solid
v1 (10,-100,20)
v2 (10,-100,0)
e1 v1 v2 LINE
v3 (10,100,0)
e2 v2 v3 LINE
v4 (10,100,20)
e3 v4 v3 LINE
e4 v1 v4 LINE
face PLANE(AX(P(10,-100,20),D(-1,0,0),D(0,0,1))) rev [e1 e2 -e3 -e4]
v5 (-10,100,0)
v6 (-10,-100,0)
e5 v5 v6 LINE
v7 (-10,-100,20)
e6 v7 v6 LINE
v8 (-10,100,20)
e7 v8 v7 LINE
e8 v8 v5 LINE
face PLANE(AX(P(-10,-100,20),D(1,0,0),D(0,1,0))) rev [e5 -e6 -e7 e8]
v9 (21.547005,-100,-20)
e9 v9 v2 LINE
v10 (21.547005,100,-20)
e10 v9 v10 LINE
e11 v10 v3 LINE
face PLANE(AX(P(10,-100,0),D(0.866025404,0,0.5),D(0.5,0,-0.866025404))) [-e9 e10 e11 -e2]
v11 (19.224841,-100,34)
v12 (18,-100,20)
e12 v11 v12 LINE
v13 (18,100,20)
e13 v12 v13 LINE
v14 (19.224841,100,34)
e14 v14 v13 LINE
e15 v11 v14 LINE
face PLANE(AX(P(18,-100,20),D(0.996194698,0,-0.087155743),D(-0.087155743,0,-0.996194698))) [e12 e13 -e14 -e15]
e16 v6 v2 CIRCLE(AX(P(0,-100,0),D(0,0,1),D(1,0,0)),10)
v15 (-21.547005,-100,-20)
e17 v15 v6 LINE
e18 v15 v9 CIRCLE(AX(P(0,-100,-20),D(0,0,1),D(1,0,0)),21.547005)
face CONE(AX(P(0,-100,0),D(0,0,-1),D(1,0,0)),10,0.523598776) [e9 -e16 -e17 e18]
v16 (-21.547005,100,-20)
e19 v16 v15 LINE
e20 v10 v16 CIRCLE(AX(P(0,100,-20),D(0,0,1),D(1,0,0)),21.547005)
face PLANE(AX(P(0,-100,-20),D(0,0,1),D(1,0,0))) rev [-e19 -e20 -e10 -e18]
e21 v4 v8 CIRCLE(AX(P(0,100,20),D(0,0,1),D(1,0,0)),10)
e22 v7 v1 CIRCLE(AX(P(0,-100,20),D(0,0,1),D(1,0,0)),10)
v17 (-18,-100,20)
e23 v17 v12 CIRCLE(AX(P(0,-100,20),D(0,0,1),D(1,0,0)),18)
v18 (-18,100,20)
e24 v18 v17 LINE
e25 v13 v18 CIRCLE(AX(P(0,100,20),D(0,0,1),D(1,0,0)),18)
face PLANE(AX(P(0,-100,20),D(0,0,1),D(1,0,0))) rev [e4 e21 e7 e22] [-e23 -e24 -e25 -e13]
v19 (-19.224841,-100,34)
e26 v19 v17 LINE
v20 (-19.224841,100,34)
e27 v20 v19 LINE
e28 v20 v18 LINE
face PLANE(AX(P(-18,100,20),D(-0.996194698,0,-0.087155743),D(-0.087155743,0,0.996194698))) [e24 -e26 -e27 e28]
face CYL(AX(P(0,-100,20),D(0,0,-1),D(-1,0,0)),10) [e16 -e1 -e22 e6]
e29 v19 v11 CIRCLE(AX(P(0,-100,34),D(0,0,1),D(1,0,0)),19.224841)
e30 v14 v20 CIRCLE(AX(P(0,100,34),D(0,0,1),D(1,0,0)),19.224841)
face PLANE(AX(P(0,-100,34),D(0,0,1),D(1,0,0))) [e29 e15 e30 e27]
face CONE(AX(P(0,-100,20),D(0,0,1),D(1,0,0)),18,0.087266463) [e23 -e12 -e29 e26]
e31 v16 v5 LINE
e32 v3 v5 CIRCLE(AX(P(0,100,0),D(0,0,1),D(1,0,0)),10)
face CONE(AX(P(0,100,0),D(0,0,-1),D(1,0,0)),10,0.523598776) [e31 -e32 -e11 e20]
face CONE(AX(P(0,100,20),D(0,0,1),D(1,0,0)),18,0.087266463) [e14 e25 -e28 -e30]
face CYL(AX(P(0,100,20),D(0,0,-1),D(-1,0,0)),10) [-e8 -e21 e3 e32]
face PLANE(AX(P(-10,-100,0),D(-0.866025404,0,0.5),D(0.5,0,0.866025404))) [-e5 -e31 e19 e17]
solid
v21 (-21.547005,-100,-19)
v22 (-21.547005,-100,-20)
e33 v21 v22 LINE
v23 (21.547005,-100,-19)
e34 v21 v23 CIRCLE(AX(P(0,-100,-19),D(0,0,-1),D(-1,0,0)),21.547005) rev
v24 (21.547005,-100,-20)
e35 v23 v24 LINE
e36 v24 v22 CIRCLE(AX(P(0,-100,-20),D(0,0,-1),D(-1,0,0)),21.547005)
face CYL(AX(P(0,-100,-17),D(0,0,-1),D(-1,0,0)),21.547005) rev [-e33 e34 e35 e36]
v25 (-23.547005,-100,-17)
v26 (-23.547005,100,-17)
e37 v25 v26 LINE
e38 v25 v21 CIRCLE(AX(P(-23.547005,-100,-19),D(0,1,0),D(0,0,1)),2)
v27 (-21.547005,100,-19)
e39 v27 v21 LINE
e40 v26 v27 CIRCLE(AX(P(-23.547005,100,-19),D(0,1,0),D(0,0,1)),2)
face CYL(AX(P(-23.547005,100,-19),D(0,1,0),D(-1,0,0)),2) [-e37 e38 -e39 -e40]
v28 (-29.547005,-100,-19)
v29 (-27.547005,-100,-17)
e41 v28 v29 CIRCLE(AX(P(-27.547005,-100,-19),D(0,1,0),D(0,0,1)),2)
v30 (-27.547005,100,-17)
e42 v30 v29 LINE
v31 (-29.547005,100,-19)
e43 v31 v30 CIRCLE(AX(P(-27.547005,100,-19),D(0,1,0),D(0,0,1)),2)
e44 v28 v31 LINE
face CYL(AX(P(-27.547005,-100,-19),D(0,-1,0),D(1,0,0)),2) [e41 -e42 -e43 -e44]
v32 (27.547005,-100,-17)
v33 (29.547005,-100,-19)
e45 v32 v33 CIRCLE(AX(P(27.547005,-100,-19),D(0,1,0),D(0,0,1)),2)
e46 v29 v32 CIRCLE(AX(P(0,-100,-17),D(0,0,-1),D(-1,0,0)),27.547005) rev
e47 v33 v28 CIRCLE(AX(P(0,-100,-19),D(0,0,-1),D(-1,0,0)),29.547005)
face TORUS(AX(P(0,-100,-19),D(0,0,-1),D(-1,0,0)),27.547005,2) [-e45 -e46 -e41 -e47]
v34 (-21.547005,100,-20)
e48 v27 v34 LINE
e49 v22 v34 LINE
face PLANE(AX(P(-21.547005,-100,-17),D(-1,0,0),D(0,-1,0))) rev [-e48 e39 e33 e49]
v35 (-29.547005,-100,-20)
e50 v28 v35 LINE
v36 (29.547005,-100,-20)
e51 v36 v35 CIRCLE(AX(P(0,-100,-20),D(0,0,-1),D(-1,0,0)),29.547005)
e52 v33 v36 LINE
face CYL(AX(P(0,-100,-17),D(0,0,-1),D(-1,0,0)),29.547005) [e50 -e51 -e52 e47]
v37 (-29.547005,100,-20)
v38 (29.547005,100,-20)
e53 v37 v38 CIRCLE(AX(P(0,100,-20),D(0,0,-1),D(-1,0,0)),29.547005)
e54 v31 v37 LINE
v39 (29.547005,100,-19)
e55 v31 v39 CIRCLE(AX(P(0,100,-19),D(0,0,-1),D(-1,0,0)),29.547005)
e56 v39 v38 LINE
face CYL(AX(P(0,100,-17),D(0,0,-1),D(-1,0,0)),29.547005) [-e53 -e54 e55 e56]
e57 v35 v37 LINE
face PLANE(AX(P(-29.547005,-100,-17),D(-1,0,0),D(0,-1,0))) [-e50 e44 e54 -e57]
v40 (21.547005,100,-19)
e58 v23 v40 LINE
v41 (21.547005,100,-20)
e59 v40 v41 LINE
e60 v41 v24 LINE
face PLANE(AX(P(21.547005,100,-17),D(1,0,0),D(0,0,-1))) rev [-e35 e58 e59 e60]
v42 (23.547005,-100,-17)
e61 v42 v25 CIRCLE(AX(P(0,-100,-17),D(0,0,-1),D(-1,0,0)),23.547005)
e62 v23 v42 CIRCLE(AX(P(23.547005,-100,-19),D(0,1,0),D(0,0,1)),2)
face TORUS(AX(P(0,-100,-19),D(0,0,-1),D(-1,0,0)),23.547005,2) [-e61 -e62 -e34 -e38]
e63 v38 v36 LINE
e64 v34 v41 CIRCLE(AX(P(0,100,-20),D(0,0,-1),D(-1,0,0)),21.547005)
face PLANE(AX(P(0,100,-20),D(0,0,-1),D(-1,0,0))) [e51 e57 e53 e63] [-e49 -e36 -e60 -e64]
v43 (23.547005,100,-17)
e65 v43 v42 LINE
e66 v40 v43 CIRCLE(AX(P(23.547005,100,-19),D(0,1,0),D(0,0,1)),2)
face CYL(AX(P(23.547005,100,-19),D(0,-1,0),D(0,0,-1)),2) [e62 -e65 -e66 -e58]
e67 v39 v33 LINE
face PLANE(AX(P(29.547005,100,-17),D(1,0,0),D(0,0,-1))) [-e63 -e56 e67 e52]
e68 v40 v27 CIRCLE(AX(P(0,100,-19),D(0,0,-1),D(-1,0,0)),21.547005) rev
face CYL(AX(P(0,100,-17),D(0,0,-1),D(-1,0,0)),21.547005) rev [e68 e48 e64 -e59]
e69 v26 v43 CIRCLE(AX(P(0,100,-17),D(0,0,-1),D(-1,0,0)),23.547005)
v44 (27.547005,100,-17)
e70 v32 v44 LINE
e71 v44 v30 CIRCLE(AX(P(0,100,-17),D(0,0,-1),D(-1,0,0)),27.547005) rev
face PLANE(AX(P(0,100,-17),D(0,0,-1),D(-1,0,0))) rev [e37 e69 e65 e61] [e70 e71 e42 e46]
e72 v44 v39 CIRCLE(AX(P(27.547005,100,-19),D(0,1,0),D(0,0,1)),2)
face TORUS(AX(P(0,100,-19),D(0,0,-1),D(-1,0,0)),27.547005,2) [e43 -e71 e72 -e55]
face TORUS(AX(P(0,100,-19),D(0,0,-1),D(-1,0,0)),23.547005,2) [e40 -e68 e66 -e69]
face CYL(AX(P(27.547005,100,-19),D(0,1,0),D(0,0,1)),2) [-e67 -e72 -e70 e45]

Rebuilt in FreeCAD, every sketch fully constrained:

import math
import FreeCAD as App
import Part
import Sketcher

V = App.Vector


def edges_at(feature, points):
    """Names of the edges that pass closest to the given points."""
    edges = feature.Shape.Edges
    near = lambda p: min(range(len(edges)), key=lambda i: edges[i].distToShape(Part.Vertex(*p))[0])
    return sorted({f"Edge{near(p) + 1}" for p in points})

doc = App.newDocument("Part")
body = doc.addObject("PartDesign::Body", "Body")

sketch1 = body.newObject("Sketcher::SketchObject", "Sketch")
sketch1.AttachmentSupport = (doc.getObject("XY_Plane"), [""])
sketch1.MapMode = "FlatFace"
sketch1.addGeometry([
    Part.ArcOfCircle(Part.Circle(V(0, -100, 0), V(0, 0, 1), 10), math.radians(180), math.radians(360)),
    Part.LineSegment(V(10, -100, 0), V(10, 100, 0)),
    Part.ArcOfCircle(Part.Circle(V(0, 100, 0), V(0, 0, 1), 10), math.radians(0), math.radians(180)),
    Part.LineSegment(V(-10, 100, 0), V(-10, -100, 0)),
], False)
sketch1.addConstraint([
    Sketcher.Constraint("Tangent", 0, 2, 1, 1),
    Sketcher.Constraint("Tangent", 1, 2, 2, 1),
    Sketcher.Constraint("Tangent", 2, 2, 3, 1),
    Sketcher.Constraint("Tangent", 3, 2, 0, 1),
    Sketcher.Constraint("Vertical", 1),
    Sketcher.Constraint("Vertical", 3),
    Sketcher.Constraint("Symmetric", 0, 3, 2, 3, -1, 1),
    Sketcher.Constraint("Radius", 0, 10.0),
    Sketcher.Constraint("DistanceY", 1, 1, 1, 2, 200.0),
])
pad1 = body.newObject("PartDesign::Pad", "Pad")
pad1.Profile = sketch1
pad1.Length = 20

sketch2 = body.newObject("Sketcher::SketchObject", "Sketch001")
sketch2.AttachmentSupport = (doc.getObject("XY_Plane"), [""])
sketch2.MapMode = "FlatFace"
sketch2.addGeometry([
    Part.ArcOfCircle(Part.Circle(V(0, -100, 0), V(0, 0, 1), 10), math.radians(180), math.radians(360)),
    Part.LineSegment(V(10, -100, 0), V(10, 100, 0)),
    Part.ArcOfCircle(Part.Circle(V(0, 100, 0), V(0, 0, 1), 10), math.radians(0), math.radians(180)),
    Part.LineSegment(V(-10, 100, 0), V(-10, -100, 0)),
], False)
sketch2.addConstraint([
    Sketcher.Constraint("Tangent", 0, 2, 1, 1),
    Sketcher.Constraint("Tangent", 1, 2, 2, 1),
    Sketcher.Constraint("Tangent", 2, 2, 3, 1),
    Sketcher.Constraint("Tangent", 3, 2, 0, 1),
    Sketcher.Constraint("Vertical", 1),
    Sketcher.Constraint("Vertical", 3),
    Sketcher.Constraint("Symmetric", 0, 3, 2, 3, -1, 1),
    Sketcher.Constraint("Radius", 0, 10.0),
    Sketcher.Constraint("DistanceY", 1, 1, 1, 2, 200.0),
])
pad2 = body.newObject("PartDesign::Pad", "Pad001")
pad2.Profile = sketch2
pad2.Length = 20
pad2.Reversed = True
pad2.TaperAngle = 30

sketch3 = body.newObject("Sketcher::SketchObject", "Sketch002")
sketch3.AttachmentSupport = (doc.getObject("XY_Plane"), [""])
sketch3.MapMode = "FlatFace"
sketch3.AttachmentOffset = App.Placement(V(0, 0, 20), App.Rotation())
sketch3.addGeometry([
    Part.LineSegment(V(18, -100, 0), V(18, 100, 0)),
    Part.ArcOfCircle(Part.Circle(V(0, 100, 0), V(0, 0, 1), 18), math.radians(0), math.radians(180)),
    Part.LineSegment(V(-18, 100, 0), V(-18, -100, 0)),
    Part.ArcOfCircle(Part.Circle(V(0, -100, 0), V(0, 0, 1), 18), math.radians(180), math.radians(360)),
], False)
sketch3.addConstraint([
    Sketcher.Constraint("Tangent", 0, 2, 1, 1),
    Sketcher.Constraint("Tangent", 1, 2, 2, 1),
    Sketcher.Constraint("Tangent", 2, 2, 3, 1),
    Sketcher.Constraint("Tangent", 3, 2, 0, 1),
    Sketcher.Constraint("Vertical", 0),
    Sketcher.Constraint("Vertical", 2),
    Sketcher.Constraint("Symmetric", 1, 3, 3, 3, -1, 1),
    Sketcher.Constraint("Radius", 1, 18.0),
    Sketcher.Constraint("DistanceY", 0, 1, 0, 2, 200.0),
])
pad3 = body.newObject("PartDesign::Pad", "Pad002")
pad3.Profile = sketch3
pad3.Length = 14
pad3.TaperAngle = 5
body2 = doc.addObject("PartDesign::Body", "Body001")

sketch4 = body2.newObject("Sketcher::SketchObject", "Sketch003")
sketch4.AttachmentSupport = (doc.getObject("XY_Plane001"), [""])
sketch4.MapMode = "FlatFace"
sketch4.AttachmentOffset = App.Placement(V(0, 0, -20), App.Rotation())
sketch4.addGeometry([
    Part.LineSegment(V(30, 100, 0), V(30, -100, 0)),
    Part.ArcOfCircle(Part.Circle(V(0, -100, 0), V(0, 0, 1), 30), math.radians(180), math.radians(360)),
    Part.LineSegment(V(-30, -100, 0), V(-30, 100, 0)),
    Part.ArcOfCircle(Part.Circle(V(0, 100, 0), V(0, 0, 1), 30), math.radians(0), math.radians(180)),
    Part.LineSegment(V(-22, 100, 0), V(-22, -100, 0)),
    Part.ArcOfCircle(Part.Circle(V(0, -100, 0), V(0, 0, 1), 22), math.radians(180), math.radians(360)),
    Part.LineSegment(V(22, -100, 0), V(22, 100, 0)),
    Part.ArcOfCircle(Part.Circle(V(0, 100, 0), V(0, 0, 1), 22), math.radians(0), math.radians(180)),
], False)
sketch4.addConstraint([
    Sketcher.Constraint("Tangent", 0, 2, 1, 2),
    Sketcher.Constraint("Tangent", 1, 1, 2, 1),
    Sketcher.Constraint("Tangent", 2, 2, 3, 2),
    Sketcher.Constraint("Tangent", 3, 1, 0, 1),
    Sketcher.Constraint("Tangent", 4, 2, 5, 1),
    Sketcher.Constraint("Tangent", 5, 2, 6, 1),
    Sketcher.Constraint("Tangent", 6, 2, 7, 1),
    Sketcher.Constraint("Tangent", 7, 2, 4, 1),
    Sketcher.Constraint("Vertical", 0),
    Sketcher.Constraint("Vertical", 2),
    Sketcher.Constraint("Vertical", 4),
    Sketcher.Constraint("Vertical", 6),
    Sketcher.Constraint("Coincident", 5, 3, 1, 3),
    Sketcher.Constraint("Symmetric", 1, 3, 3, 3, -1, 1),
    Sketcher.Constraint("Horizontal", 7, 3, 2, 2),
    Sketcher.Constraint("DistanceY", 0, 2, 0, 1, 200.0),
    Sketcher.Constraint("DistanceX", 1, 1, 4, 2, 8.0),
    Sketcher.Constraint("Radius", 1, 29.547005),
])
pad4 = body2.newObject("PartDesign::Pad", "Pad003")
pad4.Profile = sketch4
pad4.Length = 3
doc.recompute()

fillet = body2.newObject("PartDesign::Fillet", "Fillet")
fillet.Base = (pad4, edges_at(pad4, [
    (0, -129.547, -17),
    (-29.547, 0, -17),
    (0, -121.547, -17),
    (21.547, 0, -17),
    (0, 121.547, -17),
    (-21.547, 0, -17),
    (0, 129.547, -17),
    (29.547, 0, -17),
]))
fillet.Radius = 2

doc.recompute()
